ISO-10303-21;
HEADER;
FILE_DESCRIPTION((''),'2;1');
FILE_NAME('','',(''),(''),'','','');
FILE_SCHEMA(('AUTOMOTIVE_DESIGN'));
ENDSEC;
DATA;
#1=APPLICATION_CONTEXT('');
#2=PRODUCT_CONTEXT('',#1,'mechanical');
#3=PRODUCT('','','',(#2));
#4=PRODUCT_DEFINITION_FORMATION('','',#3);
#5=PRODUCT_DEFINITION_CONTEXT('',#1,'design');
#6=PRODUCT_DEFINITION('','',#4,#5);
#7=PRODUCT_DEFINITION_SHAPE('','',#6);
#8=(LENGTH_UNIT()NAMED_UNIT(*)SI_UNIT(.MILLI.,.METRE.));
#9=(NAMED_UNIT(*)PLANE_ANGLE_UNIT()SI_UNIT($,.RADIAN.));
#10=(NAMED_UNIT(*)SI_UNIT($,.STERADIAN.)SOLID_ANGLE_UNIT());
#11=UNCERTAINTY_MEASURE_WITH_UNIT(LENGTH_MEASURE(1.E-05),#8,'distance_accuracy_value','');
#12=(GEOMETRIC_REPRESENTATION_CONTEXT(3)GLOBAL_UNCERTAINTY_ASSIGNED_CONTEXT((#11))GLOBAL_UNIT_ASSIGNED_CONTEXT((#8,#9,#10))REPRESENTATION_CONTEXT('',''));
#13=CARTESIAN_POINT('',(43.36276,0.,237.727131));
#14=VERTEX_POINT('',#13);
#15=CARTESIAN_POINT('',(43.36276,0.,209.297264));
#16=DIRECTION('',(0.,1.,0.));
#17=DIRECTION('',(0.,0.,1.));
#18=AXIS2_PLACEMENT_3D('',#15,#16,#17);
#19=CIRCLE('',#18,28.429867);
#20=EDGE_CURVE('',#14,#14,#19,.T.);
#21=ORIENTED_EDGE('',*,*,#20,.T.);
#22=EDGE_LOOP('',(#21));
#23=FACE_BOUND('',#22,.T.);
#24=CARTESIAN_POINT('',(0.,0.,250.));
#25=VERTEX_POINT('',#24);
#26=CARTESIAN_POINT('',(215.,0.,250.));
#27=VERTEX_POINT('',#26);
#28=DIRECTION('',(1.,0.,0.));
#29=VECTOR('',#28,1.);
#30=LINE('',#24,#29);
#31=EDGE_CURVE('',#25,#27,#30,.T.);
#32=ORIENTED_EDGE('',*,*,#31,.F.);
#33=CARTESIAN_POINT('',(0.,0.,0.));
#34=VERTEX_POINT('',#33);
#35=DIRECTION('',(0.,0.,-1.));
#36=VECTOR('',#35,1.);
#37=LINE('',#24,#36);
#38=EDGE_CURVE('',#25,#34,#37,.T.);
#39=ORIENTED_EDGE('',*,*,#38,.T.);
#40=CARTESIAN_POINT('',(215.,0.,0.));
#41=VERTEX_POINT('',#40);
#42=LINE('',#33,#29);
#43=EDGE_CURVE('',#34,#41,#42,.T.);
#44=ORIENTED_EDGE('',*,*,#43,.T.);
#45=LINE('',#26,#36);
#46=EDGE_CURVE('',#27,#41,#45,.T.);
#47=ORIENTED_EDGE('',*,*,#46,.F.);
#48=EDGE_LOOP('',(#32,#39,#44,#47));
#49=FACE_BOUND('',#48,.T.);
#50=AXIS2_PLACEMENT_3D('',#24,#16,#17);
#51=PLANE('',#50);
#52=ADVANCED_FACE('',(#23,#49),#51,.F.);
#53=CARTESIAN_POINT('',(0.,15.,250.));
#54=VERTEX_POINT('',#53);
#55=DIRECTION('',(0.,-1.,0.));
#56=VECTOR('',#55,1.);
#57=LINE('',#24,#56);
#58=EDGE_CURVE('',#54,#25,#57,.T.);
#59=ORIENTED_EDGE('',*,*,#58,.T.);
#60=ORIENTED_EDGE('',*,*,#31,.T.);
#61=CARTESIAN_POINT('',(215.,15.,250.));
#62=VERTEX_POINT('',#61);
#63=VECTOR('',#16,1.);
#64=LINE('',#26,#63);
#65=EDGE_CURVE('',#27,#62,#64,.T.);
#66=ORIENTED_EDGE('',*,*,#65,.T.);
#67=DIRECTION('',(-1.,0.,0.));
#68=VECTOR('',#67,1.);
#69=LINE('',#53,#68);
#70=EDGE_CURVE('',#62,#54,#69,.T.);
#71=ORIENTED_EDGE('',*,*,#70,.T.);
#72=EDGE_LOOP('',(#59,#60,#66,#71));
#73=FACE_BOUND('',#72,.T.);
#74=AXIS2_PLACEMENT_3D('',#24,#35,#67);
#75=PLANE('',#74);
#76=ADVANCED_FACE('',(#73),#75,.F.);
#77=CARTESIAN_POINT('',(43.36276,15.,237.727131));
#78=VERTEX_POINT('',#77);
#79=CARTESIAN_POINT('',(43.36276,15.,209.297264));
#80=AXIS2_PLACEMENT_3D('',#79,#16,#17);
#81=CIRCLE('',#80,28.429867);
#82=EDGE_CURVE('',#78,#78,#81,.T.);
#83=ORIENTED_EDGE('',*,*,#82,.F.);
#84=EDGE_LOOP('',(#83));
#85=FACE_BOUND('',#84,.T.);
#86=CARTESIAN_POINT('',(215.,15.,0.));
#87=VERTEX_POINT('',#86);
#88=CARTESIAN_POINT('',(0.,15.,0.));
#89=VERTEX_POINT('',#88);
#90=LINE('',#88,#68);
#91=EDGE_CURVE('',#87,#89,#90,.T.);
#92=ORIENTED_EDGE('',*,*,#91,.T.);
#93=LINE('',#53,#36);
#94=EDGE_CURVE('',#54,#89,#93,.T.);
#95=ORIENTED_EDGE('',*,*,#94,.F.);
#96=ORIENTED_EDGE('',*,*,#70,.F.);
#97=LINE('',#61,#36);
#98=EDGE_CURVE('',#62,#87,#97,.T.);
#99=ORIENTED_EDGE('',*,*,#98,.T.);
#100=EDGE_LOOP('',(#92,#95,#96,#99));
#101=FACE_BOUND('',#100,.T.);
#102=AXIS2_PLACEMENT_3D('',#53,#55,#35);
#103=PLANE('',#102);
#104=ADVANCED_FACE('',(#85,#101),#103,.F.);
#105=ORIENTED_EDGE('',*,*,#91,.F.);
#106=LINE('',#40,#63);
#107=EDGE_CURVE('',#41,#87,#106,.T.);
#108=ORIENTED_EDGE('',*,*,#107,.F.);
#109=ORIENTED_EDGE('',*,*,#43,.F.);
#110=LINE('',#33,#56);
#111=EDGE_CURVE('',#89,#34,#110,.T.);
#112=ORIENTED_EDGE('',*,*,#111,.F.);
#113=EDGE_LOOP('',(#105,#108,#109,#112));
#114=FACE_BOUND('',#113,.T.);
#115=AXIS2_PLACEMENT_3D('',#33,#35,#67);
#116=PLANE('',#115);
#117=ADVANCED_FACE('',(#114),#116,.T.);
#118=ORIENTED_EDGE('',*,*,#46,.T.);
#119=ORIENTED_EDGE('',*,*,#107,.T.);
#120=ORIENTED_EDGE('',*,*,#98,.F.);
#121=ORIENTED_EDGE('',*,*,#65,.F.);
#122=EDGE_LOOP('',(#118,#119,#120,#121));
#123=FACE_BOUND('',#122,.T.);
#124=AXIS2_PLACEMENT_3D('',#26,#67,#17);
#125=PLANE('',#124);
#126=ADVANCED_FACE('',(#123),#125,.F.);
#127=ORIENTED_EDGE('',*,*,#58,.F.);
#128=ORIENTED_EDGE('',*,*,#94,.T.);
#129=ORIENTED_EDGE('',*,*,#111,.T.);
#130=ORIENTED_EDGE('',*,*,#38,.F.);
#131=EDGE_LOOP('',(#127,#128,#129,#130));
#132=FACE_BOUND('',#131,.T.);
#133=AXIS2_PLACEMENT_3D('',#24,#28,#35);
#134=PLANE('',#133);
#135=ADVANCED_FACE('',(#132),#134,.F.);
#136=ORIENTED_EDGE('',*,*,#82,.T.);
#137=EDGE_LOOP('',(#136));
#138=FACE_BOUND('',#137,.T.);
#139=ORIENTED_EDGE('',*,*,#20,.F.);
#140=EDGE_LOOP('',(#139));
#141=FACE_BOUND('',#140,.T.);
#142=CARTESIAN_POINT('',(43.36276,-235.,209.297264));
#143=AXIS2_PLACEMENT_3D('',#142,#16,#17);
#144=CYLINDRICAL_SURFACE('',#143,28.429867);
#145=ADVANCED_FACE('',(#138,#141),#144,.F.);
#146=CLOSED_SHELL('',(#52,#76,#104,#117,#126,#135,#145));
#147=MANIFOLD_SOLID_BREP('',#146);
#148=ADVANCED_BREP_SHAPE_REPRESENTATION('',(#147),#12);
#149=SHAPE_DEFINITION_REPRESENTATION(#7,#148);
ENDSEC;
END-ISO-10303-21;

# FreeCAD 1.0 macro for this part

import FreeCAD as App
import Part
import Sketcher
from FreeCAD import Vector
Q = App.Units.Quantity

doc = App.newDocument("Part")
body = doc.addObject("PartDesign::Body", "Body")

# Sketch on XY plane
sketch1 = doc.addObject("Sketcher::SketchObject", "Sketch")
body.addObject(sketch1)
sketch1.AttachmentSupport = (doc.XY_Plane, [""])
sketch1.MapMode = "FlatFace"
sketch1.addGeometry(Part.LineSegment(Vector(0, 15, 0), Vector(0, 0, 0)), False)
sketch1.addGeometry(Part.LineSegment(Vector(0, 0, 0), Vector(215, 0, 0)), False)
sketch1.addGeometry(Part.LineSegment(Vector(215, 0, 0), Vector(215, 15, 0)), False)
sketch1.addGeometry(Part.LineSegment(Vector(215, 15, 0), Vector(0, 15, 0)), False)
sketch1.addConstraint(Sketcher.Constraint("Coincident", 0, 2, 1, 1))
sketch1.addConstraint(Sketcher.Constraint("Coincident", 1, 2, 2, 1))
sketch1.addConstraint(Sketcher.Constraint("Coincident", 2, 2, 3, 1))
sketch1.addConstraint(Sketcher.Constraint("Coincident", 3, 2, 0, 1))
sketch1.addConstraint(Sketcher.Constraint("Vertical", 0))
sketch1.addConstraint(Sketcher.Constraint("Horizontal", 1))
sketch1.addConstraint(Sketcher.Constraint("Vertical", 2))
sketch1.addConstraint(Sketcher.Constraint("Horizontal", 3))
sketch1.addConstraint(Sketcher.Constraint("Coincident", 0, 2, -1, 1))
sketch1.addConstraint(Sketcher.Constraint("DistanceX", 1, 1, 1, 2, Q("215 mm")))
sketch1.addConstraint(Sketcher.Constraint("DistanceY", 0, 2, 0, 1, Q("15 mm")))
pad1 = doc.addObject("PartDesign::Pad", "Pad")
body.addObject(pad1)
pad1.Profile = sketch1
pad1.Length = 250

# Sketch on XZ plane
sketch2 = doc.addObject("Sketcher::SketchObject", "Sketch001")
body.addObject(sketch2)
sketch2.AttachmentSupport = (doc.XZ_Plane, [""])
sketch2.MapMode = "FlatFace"
sketch2.AttachmentOffset = App.Placement(Vector(0, 0, -15), App.Rotation())
sketch2.addGeometry(Part.Circle(Vector(43, 209, 0), Vector(0, 0, 1), 28), False)
sketch2.addConstraint(Sketcher.Constraint("Diameter", 0, Q("56.859733 mm")))
sketch2.addConstraint(Sketcher.Constraint("DistanceX", -1, 1, 0, 3, Q("43.36276 mm")))
sketch2.addConstraint(Sketcher.Constraint("DistanceY", -1, 1, 0, 3, Q("209.297264 mm")))
pocket1 = doc.addObject("PartDesign::Pocket", "Pocket")
body.addObject(pocket1)
pocket1.Profile = sketch2
pocket1.Length = 250
pocket1.Reversed = True

doc.recompute()
